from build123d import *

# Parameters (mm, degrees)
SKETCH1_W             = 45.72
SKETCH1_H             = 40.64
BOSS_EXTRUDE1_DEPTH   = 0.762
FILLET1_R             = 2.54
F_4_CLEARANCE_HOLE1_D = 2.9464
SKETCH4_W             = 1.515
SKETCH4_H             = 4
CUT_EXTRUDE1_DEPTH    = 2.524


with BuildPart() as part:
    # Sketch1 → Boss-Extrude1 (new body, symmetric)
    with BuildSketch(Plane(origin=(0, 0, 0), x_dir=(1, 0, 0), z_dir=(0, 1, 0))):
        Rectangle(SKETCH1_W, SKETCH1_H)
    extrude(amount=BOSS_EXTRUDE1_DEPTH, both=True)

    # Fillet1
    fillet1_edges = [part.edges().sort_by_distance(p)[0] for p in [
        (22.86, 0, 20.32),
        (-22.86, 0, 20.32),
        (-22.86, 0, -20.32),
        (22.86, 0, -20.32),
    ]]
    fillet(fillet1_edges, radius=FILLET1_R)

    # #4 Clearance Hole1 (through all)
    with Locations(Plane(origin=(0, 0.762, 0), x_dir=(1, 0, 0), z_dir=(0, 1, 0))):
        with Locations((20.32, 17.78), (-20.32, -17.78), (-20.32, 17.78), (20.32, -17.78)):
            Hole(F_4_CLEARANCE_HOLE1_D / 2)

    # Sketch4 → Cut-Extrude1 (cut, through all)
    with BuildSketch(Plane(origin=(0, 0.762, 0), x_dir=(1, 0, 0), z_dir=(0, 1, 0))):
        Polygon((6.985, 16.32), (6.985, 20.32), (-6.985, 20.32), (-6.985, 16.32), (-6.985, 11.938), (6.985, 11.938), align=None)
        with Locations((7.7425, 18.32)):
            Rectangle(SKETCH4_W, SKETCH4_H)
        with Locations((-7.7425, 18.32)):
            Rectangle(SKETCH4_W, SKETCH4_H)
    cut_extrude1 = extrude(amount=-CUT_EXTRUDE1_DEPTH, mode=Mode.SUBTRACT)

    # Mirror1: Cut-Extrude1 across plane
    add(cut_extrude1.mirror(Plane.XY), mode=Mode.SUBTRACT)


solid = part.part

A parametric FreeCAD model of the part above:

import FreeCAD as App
import Part
import Sketcher
Q = App.Units.Quantity


def edges_at(feature, points):
    """Names of the edges that pass closest to the given points."""
    edges = feature.Shape.Edges
    near = lambda p: min(range(len(edges)), key=lambda i: edges[i].distToShape(Part.Vertex(*p))[0])
    return sorted({f"Edge{near(p) + 1}" for p in points})

doc = App.newDocument("Part")
params = doc.addObject("Spreadsheet::Sheet", "Params")
for row, (alias, value) in enumerate([
    ("sketch1_width", "1.8 in"),
    ("sketch1_height", "1.6 in"),
    ("pad1_length", "0.06 in"),
    ("fillet_radius", "0.1 in"),
    ("sketch2_diameter", "0.116 in"),
    ("hole_diameter", "0.116 in"),
    ("sketch3_width", "0.55 in"),
], start=1):
    params.set(f"A{row}", alias)
    params.set(f"B{row}", "=" + value)
    params.setAlias(f"B{row}", alias)

body = doc.addObject("PartDesign::Body", "Body")

# Sketch on XZ plane
sketch1 = doc.addObject("Sketcher::SketchObject", "Sketch")
body.addObject(sketch1)
sketch1.AttachmentSupport = (doc.XZ_Plane, [""])
sketch1.MapMode = "FlatFace"
sketch1.addGeometry(Part.LineSegment(App.Vector(-22.86, -20.32, 0), App.Vector(-22.86, 20.32, 0)), False)
sketch1.addGeometry(Part.LineSegment(App.Vector(-22.86, 20.32, 0), App.Vector(22.86, 20.32, 0)), False)
sketch1.addGeometry(Part.LineSegment(App.Vector(22.86, 20.32, 0), App.Vector(22.86, -20.32, 0)), False)
sketch1.addGeometry(Part.LineSegment(App.Vector(22.86, -20.32, 0), App.Vector(-22.86, -20.32, 0)), False)
sketch1.addConstraint(Sketcher.Constraint("Coincident", 0, 2, 1, 1))
sketch1.addConstraint(Sketcher.Constraint("Coincident", 1, 2, 2, 1))
sketch1.addConstraint(Sketcher.Constraint("Coincident", 2, 2, 3, 1))
sketch1.addConstraint(Sketcher.Constraint("Coincident", 3, 2, 0, 1))
sketch1.addConstraint(Sketcher.Constraint("Vertical", 0))
sketch1.addConstraint(Sketcher.Constraint("Horizontal", 1))
sketch1.addConstraint(Sketcher.Constraint("Vertical", 2))
sketch1.addConstraint(Sketcher.Constraint("Horizontal", 3))
sketch1.addConstraint(Sketcher.Constraint("Symmetric", 0, 2, 2, 2, -1, 1))
sketch1.addConstraint(Sketcher.Constraint("DistanceX", 1, 1, 1, 2, Q("1.8 in")))
sketch1.addConstraint(Sketcher.Constraint("DistanceY", 0, 1, 0, 2, Q("1.6 in")))
sketch1.setExpression("Constraints[9]", "Params.sketch1_width")
sketch1.setExpression("Constraints[10]", "Params.sketch1_height")
pad1 = doc.addObject("PartDesign::Pad", "Pad")
body.addObject(pad1)
pad1.Profile = sketch1
pad1.setExpression("Length", "Params.pad1_length")
pad1.Midplane = True
doc.recompute()

fillet = doc.addObject("PartDesign::Fillet", "Fillet")
body.addObject(fillet)
fillet.Base = (pad1, edges_at(pad1, [
    (22.86, 0, 20.32),
    (-22.86, 0, 20.32),
    (-22.86, 0, -20.32),
    (22.86, 0, -20.32),
]))
fillet.setExpression("Radius", "Params.fillet_radius")

# Sketch on XZ plane
sketch2 = doc.addObject("Sketcher::SketchObject", "Sketch001")
body.addObject(sketch2)
sketch2.AttachmentSupport = (doc.XZ_Plane, [""])
sketch2.MapMode = "FlatFace"
sketch2.AttachmentOffset = App.Placement(App.Vector(0, 0, -0.03 * 25.4), App.Rotation())
sketch2.addGeometry(Part.Circle(App.Vector(20.32, -17.78, 0), App.Vector(0, 0, 1), 1.4732), False)
sketch2.addGeometry(Part.Circle(App.Vector(-20.32, 17.78, 0), App.Vector(0, 0, 1), 1.4732), False)
sketch2.addGeometry(Part.Circle(App.Vector(-20.32, -17.78, 0), App.Vector(0, 0, 1), 1.4732), False)
sketch2.addGeometry(Part.Circle(App.Vector(20.32, 17.78, 0), App.Vector(0, 0, 1), 1.4732), False)
sketch2.addConstraint(Sketcher.Constraint("Equal", 0, 1))
sketch2.addConstraint(Sketcher.Constraint("Equal", 1, 2))
sketch2.addConstraint(Sketcher.Constraint("Equal", 2, 3))
sketch2.addConstraint(Sketcher.Constraint("Symmetric", 0, 3, 1, 3, -1, 1))
sketch2.addConstraint(Sketcher.Constraint("Symmetric", 2, 3, 3, 3, -1, 1))
sketch2.addConstraint(Sketcher.Constraint("Symmetric", 0, 3, 2, 3, -2))
sketch2.addConstraint(Sketcher.Constraint("Diameter", 0, Q("0.116 in")))
sketch2.addConstraint(Sketcher.Constraint("DistanceX", -1, 1, 0, 3, Q("0.8 in")))
sketch2.addConstraint(Sketcher.Constraint("DistanceY", 0, 3, -1, 1, Q("0.7 in")))
sketch2.setExpression("Constraints[6]", "Params.sketch2_diameter")
doc.recompute()
hole = doc.addObject("PartDesign::Hole", "Hole")
body.addObject(hole)
hole.Profile = sketch2
hole.ThreadType = "None"
hole.setExpression("Diameter", "Params.hole_diameter")
hole.DepthType = "ThroughAll"
hole.Reversed = True

# Sketch on XZ plane
sketch3 = doc.addObject("Sketcher::SketchObject", "Sketch002")
body.addObject(sketch3)
sketch3.AttachmentSupport = (doc.XZ_Plane, [""])
sketch3.MapMode = "FlatFace"
sketch3.AttachmentOffset = App.Placement(App.Vector(0, 0, -0.03 * 25.4), App.Rotation())
sketch3.addGeometry(Part.LineSegment(App.Vector(-6.985, -16.32, 0), App.Vector(-6.985, -11.938, 0)), False)
sketch3.addGeometry(Part.LineSegment(App.Vector(-6.985, -11.938, 0), App.Vector(6.985, -11.938, 0)), False)
sketch3.addGeometry(Part.LineSegment(App.Vector(6.985, -11.938, 0), App.Vector(6.985, -16.32, 0)), False)
sketch3.addGeometry(Part.LineSegment(App.Vector(6.985, -16.32, 0), App.Vector(8.5, -16.32, 0)), False)
sketch3.addGeometry(Part.LineSegment(App.Vector(8.5, -16.32, 0), App.Vector(8.5, -20.32, 0)), False)
sketch3.addGeometry(Part.LineSegment(App.Vector(8.5, -20.32, 0), App.Vector(-8.5, -20.32, 0)), False)
sketch3.addGeometry(Part.LineSegment(App.Vector(-8.5, -20.32, 0), App.Vector(-8.5, -16.32, 0)), False)
sketch3.addGeometry(Part.LineSegment(App.Vector(-8.5, -16.32, 0), App.Vector(-6.985, -16.32, 0)), False)
sketch3.addConstraint(Sketcher.Constraint("Coincident", 0, 2, 1, 1))
sketch3.addConstraint(Sketcher.Constraint("Coincident", 1, 2, 2, 1))
sketch3.addConstraint(Sketcher.Constraint("Coincident", 2, 2, 3, 1))
sketch3.addConstraint(Sketcher.Constraint("Coincident", 3, 2, 4, 1))
sketch3.addConstraint(Sketcher.Constraint("Coincident", 4, 2, 5, 1))
sketch3.addConstraint(Sketcher.Constraint("Coincident", 5, 2, 6, 1))
sketch3.addConstraint(Sketcher.Constraint("Coincident", 6, 2, 7, 1))
sketch3.addConstraint(Sketcher.Constraint("Coincident", 7, 2, 0, 1))
sketch3.addConstraint(Sketcher.Constraint("Vertical", 0))
sketch3.addConstraint(Sketcher.Constraint("Horizontal", 1))
sketch3.addConstraint(Sketcher.Constraint("Vertical", 2))
sketch3.addConstraint(Sketcher.Constraint("Horizontal", 3))
sketch3.addConstraint(Sketcher.Constraint("Vertical", 4))
sketch3.addConstraint(Sketcher.Constraint("Horizontal", 5))
sketch3.addConstraint(Sketcher.Constraint("Vertical", 6))
sketch3.addConstraint(Sketcher.Constraint("Horizontal", 7))
sketch3.addConstraint(Sketcher.Constraint("Symmetric", 3, 2, 6, 2, -2))
sketch3.addConstraint(Sketcher.Constraint("Equal", 3, 7))
sketch3.addConstraint(Sketcher.Constraint("DistanceX", 1, 1, 1, 2, Q("0.55 in")))
sketch3.addConstraint(Sketcher.Constraint("DistanceY", 4, 2, -1, 1, Q("0.8 in")))
sketch3.addConstraint(Sketcher.Constraint("DistanceY", 0, 2, -1, 1, Q("0.47 in")))
sketch3.addConstraint(Sketcher.Constraint("DistanceX", 3, 1, 3, 2, Q("1.515 mm")))
sketch3.addConstraint(Sketcher.Constraint("DistanceY", 0, 1, 0, 2, Q("4.382 mm")))
sketch3.setExpression("Constraints[18]", "Params.sketch3_width")
pocket1 = doc.addObject("PartDesign::Pocket", "Pocket")
body.addObject(pocket1)
pocket1.Profile = sketch3
pocket1.Type = "ThroughAll"
pocket1.Reversed = True
doc.recompute()

mirrored = doc.addObject("PartDesign::Mirrored", "Mirrored")
body.addObject(mirrored)
mirrored.Originals = [pocket1]
mirrored.MirrorPlane = (doc.XY_Plane, [""])
body.Tip = mirrored

doc.recompute()
